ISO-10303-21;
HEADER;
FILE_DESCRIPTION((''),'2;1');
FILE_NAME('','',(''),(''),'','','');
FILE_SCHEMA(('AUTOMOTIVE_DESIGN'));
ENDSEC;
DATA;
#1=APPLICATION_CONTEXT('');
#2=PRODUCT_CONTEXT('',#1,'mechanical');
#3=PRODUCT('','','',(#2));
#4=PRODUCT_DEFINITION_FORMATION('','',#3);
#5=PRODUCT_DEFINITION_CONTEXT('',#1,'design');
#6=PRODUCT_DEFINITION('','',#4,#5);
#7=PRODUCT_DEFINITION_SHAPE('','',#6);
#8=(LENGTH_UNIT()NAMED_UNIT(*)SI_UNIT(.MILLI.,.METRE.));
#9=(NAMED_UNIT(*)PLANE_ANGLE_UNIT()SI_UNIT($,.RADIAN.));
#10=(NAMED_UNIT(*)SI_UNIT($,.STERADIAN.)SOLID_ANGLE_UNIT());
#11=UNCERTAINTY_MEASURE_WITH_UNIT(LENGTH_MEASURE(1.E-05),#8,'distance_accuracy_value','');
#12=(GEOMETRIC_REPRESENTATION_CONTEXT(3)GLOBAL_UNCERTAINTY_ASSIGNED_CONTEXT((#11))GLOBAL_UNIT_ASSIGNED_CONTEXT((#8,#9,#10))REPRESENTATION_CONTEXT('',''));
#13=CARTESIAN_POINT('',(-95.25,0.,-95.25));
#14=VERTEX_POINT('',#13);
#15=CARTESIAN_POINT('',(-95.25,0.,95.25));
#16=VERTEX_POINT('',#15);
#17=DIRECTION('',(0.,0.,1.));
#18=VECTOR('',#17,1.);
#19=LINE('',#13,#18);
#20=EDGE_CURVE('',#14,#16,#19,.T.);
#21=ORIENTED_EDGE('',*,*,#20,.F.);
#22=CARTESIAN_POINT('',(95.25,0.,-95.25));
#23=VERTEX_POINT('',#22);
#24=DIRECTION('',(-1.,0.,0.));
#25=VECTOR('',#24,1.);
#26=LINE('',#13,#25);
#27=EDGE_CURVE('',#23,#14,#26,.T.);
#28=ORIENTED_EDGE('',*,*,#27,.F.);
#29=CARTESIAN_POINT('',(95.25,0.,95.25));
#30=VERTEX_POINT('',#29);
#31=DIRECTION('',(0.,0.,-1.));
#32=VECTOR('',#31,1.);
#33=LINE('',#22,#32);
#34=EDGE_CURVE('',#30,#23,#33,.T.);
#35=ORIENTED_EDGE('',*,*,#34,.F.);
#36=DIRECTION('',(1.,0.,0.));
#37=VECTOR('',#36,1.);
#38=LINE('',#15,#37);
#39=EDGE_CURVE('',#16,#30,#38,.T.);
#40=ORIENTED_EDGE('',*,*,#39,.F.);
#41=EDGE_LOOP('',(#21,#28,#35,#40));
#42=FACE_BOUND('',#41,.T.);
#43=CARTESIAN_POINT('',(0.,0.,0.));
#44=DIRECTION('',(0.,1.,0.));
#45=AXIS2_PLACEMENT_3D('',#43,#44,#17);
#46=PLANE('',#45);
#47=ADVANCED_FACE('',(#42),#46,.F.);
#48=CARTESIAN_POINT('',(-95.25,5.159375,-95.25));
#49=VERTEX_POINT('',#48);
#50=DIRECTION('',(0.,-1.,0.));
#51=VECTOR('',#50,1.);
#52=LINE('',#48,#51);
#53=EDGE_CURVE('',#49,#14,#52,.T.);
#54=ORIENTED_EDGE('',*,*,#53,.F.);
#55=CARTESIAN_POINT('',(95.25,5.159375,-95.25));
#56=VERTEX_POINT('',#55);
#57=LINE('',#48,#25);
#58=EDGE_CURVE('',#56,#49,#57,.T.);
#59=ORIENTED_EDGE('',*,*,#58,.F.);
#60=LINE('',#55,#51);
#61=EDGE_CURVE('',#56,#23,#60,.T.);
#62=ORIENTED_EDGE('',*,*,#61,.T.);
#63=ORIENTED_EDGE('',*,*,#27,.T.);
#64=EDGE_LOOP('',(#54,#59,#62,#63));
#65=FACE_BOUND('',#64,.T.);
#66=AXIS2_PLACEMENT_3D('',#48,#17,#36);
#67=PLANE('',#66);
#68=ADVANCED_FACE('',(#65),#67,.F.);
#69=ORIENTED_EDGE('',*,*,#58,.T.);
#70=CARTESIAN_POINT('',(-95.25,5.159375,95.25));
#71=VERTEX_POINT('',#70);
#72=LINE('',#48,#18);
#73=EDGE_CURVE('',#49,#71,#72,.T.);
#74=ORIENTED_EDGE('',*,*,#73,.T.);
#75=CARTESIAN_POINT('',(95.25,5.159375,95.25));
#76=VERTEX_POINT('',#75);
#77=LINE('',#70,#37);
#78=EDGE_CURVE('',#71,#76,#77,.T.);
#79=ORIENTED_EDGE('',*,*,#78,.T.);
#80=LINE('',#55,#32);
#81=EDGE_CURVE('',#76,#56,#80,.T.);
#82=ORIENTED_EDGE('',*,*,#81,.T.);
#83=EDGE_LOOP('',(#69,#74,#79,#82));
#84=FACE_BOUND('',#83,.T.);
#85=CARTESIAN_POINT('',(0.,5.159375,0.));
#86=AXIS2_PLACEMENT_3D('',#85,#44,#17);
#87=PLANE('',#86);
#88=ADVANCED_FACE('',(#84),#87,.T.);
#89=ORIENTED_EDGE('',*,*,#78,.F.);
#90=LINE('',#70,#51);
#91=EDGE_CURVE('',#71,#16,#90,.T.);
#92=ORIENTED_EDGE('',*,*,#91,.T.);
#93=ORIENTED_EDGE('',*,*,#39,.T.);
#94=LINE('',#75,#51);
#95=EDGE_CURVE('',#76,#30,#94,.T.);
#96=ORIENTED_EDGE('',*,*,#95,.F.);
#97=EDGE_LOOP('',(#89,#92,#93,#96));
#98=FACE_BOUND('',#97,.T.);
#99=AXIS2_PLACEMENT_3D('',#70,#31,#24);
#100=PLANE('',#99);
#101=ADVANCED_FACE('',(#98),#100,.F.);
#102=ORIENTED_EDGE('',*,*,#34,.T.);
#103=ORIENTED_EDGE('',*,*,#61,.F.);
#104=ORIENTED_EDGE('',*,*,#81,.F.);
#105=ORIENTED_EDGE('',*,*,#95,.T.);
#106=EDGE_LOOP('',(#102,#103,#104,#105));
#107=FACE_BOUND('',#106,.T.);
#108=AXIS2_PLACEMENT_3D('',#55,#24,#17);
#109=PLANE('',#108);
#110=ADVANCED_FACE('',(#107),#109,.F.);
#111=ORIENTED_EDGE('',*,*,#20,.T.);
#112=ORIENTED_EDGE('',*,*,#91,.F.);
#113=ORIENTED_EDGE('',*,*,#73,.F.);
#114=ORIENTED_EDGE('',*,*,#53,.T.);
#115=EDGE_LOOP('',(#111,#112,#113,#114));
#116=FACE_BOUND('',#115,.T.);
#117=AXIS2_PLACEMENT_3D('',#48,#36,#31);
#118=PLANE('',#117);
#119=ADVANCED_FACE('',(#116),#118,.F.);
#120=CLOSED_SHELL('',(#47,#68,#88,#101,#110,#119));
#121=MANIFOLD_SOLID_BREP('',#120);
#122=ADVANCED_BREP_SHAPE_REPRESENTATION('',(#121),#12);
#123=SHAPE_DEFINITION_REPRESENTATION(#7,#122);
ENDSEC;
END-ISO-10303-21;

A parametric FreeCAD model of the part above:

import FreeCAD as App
import Part
import Sketcher
Q = App.Units.Quantity

doc = App.newDocument("Part")
body = doc.addObject("PartDesign::Body", "Body")

sketch1 = doc.addObject("Sketcher::SketchObject", "Sketch")
body.addObject(sketch1)
sketch1.AttachmentSupport = (doc.XZ_Plane, [""])
sketch1.MapMode = "FlatFace"
sketch1.addGeometry([
    Part.LineSegment(App.Vector(-95.25, -95.25, 0), App.Vector(-95.25, 95.25, 0)),
    Part.LineSegment(App.Vector(-95.25, 95.25, 0), App.Vector(95.25, 95.25, 0)),
    Part.LineSegment(App.Vector(95.25, 95.25, 0), App.Vector(95.25, -95.25, 0)),
    Part.LineSegment(App.Vector(95.25, -95.25, 0), App.Vector(-95.25, -95.25, 0)),
], False)
sketch1.addConstraint([
    Sketcher.Constraint("Coincident", 0, 2, 1, 1),
    Sketcher.Constraint("Coincident", 1, 2, 2, 1),
    Sketcher.Constraint("Coincident", 2, 2, 3, 1),
    Sketcher.Constraint("Coincident", 3, 2, 0, 1),
    Sketcher.Constraint("Vertical", 0),
    Sketcher.Constraint("Horizontal", 1),
    Sketcher.Constraint("Vertical", 2),
    Sketcher.Constraint("Horizontal", 3),
    Sketcher.Constraint("Symmetric", 0, 2, 2, 2, -1, 1),
    Sketcher.Constraint("Equal", 3, 0),
    Sketcher.Constraint("DistanceX", 1, 1, 1, 2, Q("7.5 in")),
])
pad1 = doc.addObject("PartDesign::Pad", "Pad")
body.addObject(pad1)
pad1.Profile = sketch1
pad1.Length = Q("0.203125 in")
pad1.Reversed = True

doc.recompute()
